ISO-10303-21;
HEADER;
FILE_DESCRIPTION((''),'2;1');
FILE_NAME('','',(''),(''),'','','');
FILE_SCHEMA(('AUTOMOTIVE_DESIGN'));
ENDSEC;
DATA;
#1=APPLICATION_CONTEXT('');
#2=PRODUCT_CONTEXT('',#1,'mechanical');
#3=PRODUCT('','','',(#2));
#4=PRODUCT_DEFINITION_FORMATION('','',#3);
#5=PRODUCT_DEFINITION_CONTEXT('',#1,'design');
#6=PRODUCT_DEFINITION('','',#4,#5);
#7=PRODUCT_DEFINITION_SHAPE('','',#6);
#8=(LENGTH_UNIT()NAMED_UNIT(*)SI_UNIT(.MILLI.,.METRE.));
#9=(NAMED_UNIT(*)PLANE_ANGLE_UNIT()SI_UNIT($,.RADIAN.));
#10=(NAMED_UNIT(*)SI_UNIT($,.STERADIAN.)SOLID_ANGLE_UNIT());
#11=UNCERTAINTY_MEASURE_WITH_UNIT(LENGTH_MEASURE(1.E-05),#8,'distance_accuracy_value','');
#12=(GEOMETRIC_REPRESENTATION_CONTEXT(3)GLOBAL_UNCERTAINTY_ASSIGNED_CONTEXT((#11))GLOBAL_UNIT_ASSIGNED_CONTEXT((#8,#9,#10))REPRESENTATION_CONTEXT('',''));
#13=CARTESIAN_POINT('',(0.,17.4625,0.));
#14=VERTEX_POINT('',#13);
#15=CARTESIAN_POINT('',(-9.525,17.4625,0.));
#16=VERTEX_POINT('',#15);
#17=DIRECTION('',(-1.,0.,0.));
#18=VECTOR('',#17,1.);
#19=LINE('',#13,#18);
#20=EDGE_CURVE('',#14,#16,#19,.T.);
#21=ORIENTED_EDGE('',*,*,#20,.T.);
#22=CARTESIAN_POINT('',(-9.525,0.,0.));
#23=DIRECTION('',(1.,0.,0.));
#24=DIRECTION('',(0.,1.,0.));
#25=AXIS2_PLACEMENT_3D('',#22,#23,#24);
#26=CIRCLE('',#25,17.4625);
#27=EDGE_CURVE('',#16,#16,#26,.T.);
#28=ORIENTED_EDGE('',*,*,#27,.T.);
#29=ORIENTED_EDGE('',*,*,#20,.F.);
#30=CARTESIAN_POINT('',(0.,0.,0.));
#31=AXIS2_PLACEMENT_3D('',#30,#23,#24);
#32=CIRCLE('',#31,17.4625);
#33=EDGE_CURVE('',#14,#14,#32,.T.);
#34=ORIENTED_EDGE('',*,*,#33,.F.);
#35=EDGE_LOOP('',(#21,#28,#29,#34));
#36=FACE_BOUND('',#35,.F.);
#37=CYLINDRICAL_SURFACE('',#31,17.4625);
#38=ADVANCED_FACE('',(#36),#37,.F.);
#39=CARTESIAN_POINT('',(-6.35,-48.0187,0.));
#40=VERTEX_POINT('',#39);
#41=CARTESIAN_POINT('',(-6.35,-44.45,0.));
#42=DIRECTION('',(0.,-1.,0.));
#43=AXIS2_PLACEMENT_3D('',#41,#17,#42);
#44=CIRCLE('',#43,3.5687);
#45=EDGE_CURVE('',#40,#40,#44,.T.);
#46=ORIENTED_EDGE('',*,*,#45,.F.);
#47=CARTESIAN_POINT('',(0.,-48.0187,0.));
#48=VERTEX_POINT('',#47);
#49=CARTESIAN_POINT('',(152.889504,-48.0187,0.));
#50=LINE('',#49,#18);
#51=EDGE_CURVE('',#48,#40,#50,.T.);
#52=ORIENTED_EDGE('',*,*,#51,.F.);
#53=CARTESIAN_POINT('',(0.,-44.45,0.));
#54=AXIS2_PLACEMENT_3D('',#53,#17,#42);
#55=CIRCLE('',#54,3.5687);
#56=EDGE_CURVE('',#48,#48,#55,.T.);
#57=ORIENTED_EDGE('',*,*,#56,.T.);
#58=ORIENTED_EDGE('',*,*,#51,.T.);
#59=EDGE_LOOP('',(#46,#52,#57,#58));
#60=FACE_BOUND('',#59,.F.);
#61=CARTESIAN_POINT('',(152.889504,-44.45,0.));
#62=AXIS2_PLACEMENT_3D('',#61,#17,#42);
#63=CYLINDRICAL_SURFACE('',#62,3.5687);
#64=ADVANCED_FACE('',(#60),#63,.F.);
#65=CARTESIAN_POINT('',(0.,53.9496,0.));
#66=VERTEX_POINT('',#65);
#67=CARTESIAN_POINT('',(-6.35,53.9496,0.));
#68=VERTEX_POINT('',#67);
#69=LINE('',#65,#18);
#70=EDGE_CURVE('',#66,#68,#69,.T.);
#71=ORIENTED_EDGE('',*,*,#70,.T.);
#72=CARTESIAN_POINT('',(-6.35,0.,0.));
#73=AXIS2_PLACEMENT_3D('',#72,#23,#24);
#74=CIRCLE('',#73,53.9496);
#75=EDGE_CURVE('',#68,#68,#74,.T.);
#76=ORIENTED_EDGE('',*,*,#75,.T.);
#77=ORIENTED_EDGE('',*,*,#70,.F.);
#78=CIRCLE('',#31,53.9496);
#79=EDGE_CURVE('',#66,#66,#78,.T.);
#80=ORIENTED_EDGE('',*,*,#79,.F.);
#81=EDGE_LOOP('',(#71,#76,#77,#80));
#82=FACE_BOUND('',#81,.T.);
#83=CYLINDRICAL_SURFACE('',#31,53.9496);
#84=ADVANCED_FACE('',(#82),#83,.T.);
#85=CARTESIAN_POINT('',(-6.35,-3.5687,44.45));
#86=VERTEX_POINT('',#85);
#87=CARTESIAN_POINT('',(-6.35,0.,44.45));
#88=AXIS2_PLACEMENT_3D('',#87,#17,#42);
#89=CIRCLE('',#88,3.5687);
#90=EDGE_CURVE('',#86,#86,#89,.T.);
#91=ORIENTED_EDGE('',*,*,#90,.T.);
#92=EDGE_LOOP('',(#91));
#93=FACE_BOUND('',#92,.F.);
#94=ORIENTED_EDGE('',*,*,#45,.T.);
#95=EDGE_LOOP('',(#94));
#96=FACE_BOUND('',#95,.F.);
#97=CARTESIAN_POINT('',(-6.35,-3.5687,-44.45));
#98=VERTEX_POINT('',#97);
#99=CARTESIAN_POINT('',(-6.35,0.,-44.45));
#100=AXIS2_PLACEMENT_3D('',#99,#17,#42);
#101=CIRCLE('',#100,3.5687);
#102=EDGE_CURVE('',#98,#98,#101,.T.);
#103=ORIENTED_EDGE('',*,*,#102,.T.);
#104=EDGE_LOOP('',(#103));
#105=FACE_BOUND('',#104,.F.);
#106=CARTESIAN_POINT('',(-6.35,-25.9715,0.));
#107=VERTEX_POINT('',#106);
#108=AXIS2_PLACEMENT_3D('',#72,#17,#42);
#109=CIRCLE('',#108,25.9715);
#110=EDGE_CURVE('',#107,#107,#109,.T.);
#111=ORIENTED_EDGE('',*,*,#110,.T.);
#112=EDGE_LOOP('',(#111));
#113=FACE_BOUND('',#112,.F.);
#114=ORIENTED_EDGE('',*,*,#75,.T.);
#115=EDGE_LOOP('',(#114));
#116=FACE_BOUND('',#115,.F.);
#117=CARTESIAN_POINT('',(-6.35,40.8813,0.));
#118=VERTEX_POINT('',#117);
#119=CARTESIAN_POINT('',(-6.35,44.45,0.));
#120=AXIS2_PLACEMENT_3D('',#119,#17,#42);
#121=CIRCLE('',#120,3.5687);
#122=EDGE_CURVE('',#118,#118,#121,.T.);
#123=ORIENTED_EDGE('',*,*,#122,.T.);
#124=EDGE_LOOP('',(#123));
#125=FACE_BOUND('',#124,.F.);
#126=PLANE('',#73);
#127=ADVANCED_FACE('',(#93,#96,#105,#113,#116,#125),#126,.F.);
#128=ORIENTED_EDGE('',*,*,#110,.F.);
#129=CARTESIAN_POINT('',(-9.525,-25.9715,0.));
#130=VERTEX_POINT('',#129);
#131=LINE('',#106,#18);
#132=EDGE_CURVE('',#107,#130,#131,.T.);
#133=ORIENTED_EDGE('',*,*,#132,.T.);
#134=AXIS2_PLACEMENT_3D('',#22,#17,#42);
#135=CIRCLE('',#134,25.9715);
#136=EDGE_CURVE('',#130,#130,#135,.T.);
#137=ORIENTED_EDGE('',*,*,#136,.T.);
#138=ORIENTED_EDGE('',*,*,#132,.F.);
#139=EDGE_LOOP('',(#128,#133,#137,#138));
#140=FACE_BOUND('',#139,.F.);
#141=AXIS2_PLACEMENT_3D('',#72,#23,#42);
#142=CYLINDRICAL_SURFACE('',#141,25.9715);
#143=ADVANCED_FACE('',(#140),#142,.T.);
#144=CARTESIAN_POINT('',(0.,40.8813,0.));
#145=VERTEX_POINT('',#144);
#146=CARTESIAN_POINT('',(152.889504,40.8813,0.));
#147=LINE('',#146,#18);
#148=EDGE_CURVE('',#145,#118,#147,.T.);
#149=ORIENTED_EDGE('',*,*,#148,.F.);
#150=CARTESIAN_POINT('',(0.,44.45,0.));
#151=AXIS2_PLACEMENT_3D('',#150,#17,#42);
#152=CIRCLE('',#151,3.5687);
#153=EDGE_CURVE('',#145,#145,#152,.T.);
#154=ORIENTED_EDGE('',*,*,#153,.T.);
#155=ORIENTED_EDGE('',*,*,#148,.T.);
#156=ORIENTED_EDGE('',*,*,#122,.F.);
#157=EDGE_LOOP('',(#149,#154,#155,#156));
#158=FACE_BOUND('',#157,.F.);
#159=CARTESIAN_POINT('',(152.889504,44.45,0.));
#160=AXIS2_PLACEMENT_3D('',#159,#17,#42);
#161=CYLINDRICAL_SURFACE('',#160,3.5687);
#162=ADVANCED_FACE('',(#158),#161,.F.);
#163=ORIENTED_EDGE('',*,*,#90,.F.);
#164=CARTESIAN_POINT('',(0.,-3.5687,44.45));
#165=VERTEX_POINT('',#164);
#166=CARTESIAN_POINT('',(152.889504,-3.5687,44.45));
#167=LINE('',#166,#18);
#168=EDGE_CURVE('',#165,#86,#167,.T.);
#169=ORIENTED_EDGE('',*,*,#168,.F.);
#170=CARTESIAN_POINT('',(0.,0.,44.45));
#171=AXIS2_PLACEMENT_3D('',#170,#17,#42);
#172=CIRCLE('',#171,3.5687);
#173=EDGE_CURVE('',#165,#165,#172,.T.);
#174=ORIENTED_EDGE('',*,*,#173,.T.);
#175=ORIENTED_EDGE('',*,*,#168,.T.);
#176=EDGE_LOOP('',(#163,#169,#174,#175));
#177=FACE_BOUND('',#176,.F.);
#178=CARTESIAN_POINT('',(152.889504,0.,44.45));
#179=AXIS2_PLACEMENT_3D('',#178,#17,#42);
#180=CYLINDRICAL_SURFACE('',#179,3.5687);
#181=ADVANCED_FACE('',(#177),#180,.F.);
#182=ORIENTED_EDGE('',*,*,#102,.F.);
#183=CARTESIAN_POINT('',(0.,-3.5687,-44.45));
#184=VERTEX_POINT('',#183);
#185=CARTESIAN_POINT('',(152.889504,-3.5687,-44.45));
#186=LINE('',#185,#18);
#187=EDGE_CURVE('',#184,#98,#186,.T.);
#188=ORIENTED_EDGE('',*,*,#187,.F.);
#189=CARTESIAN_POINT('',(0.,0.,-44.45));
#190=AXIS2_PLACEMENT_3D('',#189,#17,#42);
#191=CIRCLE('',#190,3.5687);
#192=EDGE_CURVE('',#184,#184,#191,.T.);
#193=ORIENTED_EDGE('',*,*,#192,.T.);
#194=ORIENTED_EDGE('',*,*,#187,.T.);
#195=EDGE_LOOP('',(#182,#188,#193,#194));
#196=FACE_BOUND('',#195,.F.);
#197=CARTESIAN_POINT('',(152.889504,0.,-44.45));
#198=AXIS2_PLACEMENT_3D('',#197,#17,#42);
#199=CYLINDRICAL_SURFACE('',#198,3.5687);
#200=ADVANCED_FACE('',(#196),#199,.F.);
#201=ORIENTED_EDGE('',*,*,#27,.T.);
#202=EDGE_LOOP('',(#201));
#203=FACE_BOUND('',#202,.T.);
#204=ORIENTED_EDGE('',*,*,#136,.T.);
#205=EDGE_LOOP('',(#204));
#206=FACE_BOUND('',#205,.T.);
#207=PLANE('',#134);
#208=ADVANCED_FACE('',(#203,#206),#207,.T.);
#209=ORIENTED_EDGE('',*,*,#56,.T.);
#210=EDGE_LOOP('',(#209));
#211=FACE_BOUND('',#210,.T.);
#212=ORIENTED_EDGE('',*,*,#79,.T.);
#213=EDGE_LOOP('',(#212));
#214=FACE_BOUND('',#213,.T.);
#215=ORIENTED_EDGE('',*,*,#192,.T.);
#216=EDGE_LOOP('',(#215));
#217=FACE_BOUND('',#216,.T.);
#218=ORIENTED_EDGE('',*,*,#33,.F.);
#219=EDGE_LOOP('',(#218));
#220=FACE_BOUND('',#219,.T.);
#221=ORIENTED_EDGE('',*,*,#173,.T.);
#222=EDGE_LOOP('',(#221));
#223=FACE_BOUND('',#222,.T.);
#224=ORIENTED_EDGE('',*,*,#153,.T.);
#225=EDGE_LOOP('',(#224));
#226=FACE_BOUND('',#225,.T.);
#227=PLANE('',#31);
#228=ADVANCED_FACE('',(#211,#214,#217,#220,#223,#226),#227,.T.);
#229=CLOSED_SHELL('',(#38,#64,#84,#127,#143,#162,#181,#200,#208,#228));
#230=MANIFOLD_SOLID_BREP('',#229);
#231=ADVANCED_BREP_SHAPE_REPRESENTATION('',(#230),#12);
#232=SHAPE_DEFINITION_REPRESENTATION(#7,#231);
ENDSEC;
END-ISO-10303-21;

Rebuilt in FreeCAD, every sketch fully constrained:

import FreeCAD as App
import Part
import Sketcher

V = App.Vector
Q = App.Units.Quantity

doc = App.newDocument("Part")
body = doc.addObject("PartDesign::Body", "Body")

sketch1 = body.newObject("Sketcher::SketchObject", "Sketch")
sketch1.AttachmentSupport = (doc.getObject("YZ_Plane"), [""])
sketch1.MapMode = "FlatFace"
sketch1.addGeometry(Part.Circle(V(0, 0, 0), V(0, 0, 1), 53.9496), False)
sketch1.addConstraint(Sketcher.Constraint("Coincident", 0, 3, -1, 1))
sketch1.addConstraint(Sketcher.Constraint("Diameter", 0, Q("4.248 in")))
pad1 = body.newObject("PartDesign::Pad", "Pad")
pad1.Profile = sketch1
pad1.Length = Q("0.25 in")
pad1.Reversed = True

sketch2 = body.newObject("Sketcher::SketchObject", "Sketch001")
sketch2.AttachmentSupport = (doc.getObject("YZ_Plane"), [""])
sketch2.MapMode = "FlatFace"
sketch2.AttachmentOffset = App.Placement(V(0, 0, -0.25 * 25.4), App.Rotation())
sketch2.addGeometry(Part.Circle(V(0, 0, 0), V(0, 0, 1), 25.9715), False)
sketch2.addConstraint(Sketcher.Constraint("Coincident", 0, 3, -1, 1))
sketch2.addConstraint(Sketcher.Constraint("Diameter", 0, Q("2.045 in")))
pad2 = body.newObject("PartDesign::Pad", "Pad001")
pad2.Profile = sketch2
pad2.Length = Q("0.125 in")
pad2.Reversed = True

sketch3 = body.newObject("Sketcher::SketchObject", "Sketch002")
sketch3.AttachmentSupport = (doc.getObject("YZ_Plane"), [""])
sketch3.MapMode = "FlatFace"
sketch3.addGeometry(Part.Circle(V(0, 0, 0), V(0, 0, 1), 17.4625), False)
sketch3.addConstraint(Sketcher.Constraint("Coincident", 0, 3, -1, 1))
sketch3.addConstraint(Sketcher.Constraint("Diameter", 0, Q("1.375 in")))
pocket1 = body.newObject("PartDesign::Pocket", "Pocket")
pocket1.Profile = sketch3
pocket1.Type = "ThroughAll"

sketch4 = body.newObject("Sketcher::SketchObject", "Sketch003")
sketch4.AttachmentSupport = (doc.getObject("YZ_Plane"), [""])
sketch4.MapMode = "FlatFace"
sketch4.addGeometry(Part.Circle(V(0, -44.45, 0), V(0, 0, 1), 3.5687), False)
sketch4.addGeometry(Part.Circle(V(44.45, 0, 0), V(0, 0, 1), 3.5687), False)
sketch4.addGeometry(Part.Circle(V(0, 44.45, 0), V(0, 0, 1), 3.5687), False)
sketch4.addGeometry(Part.Circle(V(-44.45, 0, 0), V(0, 0, 1), 3.5687), False)
sketch4.addConstraint(Sketcher.Constraint("Equal", 0, 1))
sketch4.addConstraint(Sketcher.Constraint("Equal", 1, 2))
sketch4.addConstraint(Sketcher.Constraint("Equal", 2, 3))
sketch4.addConstraint(Sketcher.Constraint("Symmetric", 0, 3, 2, 3, -1, 1))
sketch4.addConstraint(Sketcher.Constraint("Symmetric", 1, 3, 3, 3, -1, 1))
sketch4.addConstraint(Sketcher.Constraint("PointOnObject", 0, 3, -2))
sketch4.addConstraint(Sketcher.Constraint("PointOnObject", 1, 3, -1))
sketch4.addConstraint(Sketcher.Constraint("Diameter", 0, Q("0.281 in")))
sketch4.addConstraint(Sketcher.Constraint("DistanceY", 0, 3, 2, 3, Q("3.5 in")))
sketch4.addConstraint(Sketcher.Constraint("DistanceX", 3, 3, 1, 3, Q("3.5 in")))
doc.recompute()
hole = body.newObject("PartDesign::Hole", "Hole")
hole.Profile = sketch4
hole.ThreadType = "None"
hole.Diameter = Q("0.281 in")
hole.DepthType = "ThroughAll"

doc.recompute()
